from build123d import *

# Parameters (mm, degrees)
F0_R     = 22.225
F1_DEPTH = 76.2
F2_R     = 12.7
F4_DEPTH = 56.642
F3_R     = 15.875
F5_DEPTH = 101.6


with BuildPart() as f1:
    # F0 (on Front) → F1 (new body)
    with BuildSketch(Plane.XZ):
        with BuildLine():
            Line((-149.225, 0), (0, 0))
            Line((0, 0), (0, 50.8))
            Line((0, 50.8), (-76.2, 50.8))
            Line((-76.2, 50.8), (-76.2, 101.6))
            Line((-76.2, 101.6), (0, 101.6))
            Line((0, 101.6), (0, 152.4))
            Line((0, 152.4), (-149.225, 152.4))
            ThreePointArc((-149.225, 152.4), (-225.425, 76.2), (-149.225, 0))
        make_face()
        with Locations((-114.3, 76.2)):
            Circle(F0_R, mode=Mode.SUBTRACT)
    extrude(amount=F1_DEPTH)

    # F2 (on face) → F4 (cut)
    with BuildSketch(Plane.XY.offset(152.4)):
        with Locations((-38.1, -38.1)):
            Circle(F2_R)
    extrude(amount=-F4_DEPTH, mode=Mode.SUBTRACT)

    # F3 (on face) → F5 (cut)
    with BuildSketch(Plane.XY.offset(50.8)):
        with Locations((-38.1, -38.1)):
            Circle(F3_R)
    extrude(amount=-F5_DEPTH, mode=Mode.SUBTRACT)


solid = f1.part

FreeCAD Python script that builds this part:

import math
import FreeCAD as App
import Part
import Sketcher
Q = App.Units.Quantity

doc = App.newDocument("Part")
body = doc.addObject("PartDesign::Body", "Body")

# Sketch on XZ plane
sketch1 = body.newObject("Sketcher::SketchObject", "Sketch")
sketch1.AttachmentSupport = (doc.getObject("XZ_Plane"), [""])
sketch1.MapMode = "FlatFace"
sketch1.addGeometry([
    Part.LineSegment(App.Vector(-149.225, 0, 0), App.Vector(0, 0, 0)),  # 0
    Part.LineSegment(App.Vector(0, 0, 0), App.Vector(0, 50.8, 0)),  # 1
    Part.LineSegment(App.Vector(0, 50.8, 0), App.Vector(-76.2, 50.8, 0)),  # 2
    Part.LineSegment(App.Vector(-76.2, 50.8, 0), App.Vector(-76.2, 101.6, 0)),  # 3
    Part.LineSegment(App.Vector(-76.2, 101.6, 0), App.Vector(0, 101.6, 0)),  # 4
    Part.LineSegment(App.Vector(0, 101.6, 0), App.Vector(0, 152.4, 0)),  # 5
    Part.LineSegment(App.Vector(0, 152.4, 0), App.Vector(-149.225, 152.4, 0)),  # 6
    Part.ArcOfCircle(Part.Circle(App.Vector(-149.225, 76.2, 0), App.Vector(0, 0, 1), 76.2), math.radians(90), math.radians(270)),  # 7
    Part.Circle(App.Vector(-114.3, 76.2, 0), App.Vector(0, 0, 1), 22.225),  # 8
], False)
sketch1.addConstraint([
    Sketcher.Constraint("Coincident", 0, 2, 1, 1),
    Sketcher.Constraint("Coincident", 1, 2, 2, 1),
    Sketcher.Constraint("Coincident", 2, 2, 3, 1),
    Sketcher.Constraint("Coincident", 3, 2, 4, 1),
    Sketcher.Constraint("Coincident", 4, 2, 5, 1),
    Sketcher.Constraint("Coincident", 5, 2, 6, 1),
    Sketcher.Constraint("Tangent", 6, 2, 7, 1),
    Sketcher.Constraint("Tangent", 7, 2, 0, 1),
    Sketcher.Constraint("Horizontal", 0),
    Sketcher.Constraint("Vertical", 1),
    Sketcher.Constraint("Horizontal", 2),
    Sketcher.Constraint("Vertical", 3),
    Sketcher.Constraint("Horizontal", 4),
    Sketcher.Constraint("Vertical", 5),
    Sketcher.Constraint("Horizontal", 6),
    Sketcher.Constraint("Coincident", 0, 2, -1, 1),
    Sketcher.Constraint("PointOnObject", 4, 2, -2),
    Sketcher.Constraint("Horizontal", 7, 3, 8, 3),
    Sketcher.Constraint("Equal", 1, 3),
    Sketcher.Constraint("Equal", 3, 5),
    Sketcher.Constraint("Radius", 7, Q("3 in")),
    Sketcher.Constraint("Diameter", 8, Q("1.75 in")),
    Sketcher.Constraint("DistanceX", 2, 2, 2, 1, Q("3 in")),
    Sketcher.Constraint("DistanceX", 8, 3, -1, 1, Q("4.5 in")),
    Sketcher.Constraint("DistanceX", 0, 1, 0, 2, Q("5.875 in")),
])
pad1 = body.newObject("PartDesign::Pad", "Pad")
pad1.Profile = sketch1
pad1.Length = Q("3 in")

# Sketch on XY plane
sketch2 = body.newObject("Sketcher::SketchObject", "Sketch001")
sketch2.AttachmentSupport = (doc.getObject("XY_Plane"), [""])
sketch2.MapMode = "FlatFace"
sketch2.AttachmentOffset = App.Placement(App.Vector(0, 0, 6 * 25.4), App.Rotation())
sketch2.addGeometry(Part.Circle(App.Vector(-38.1, -38.1, 0), App.Vector(0, 0, 1), 12.7), False)
sketch2.addConstraint([
    Sketcher.Constraint("Diameter", 0, Q("1 in")),
    Sketcher.Constraint("DistanceX", 0, 3, -1, 1, Q("1.5 in")),
    Sketcher.Constraint("DistanceY", 0, 3, -1, 1, Q("1.5 in")),
])
pocket1 = body.newObject("PartDesign::Pocket", "Pocket")
pocket1.Profile = sketch2
pocket1.Length = Q("2.23 in")

# Sketch on XY plane
sketch3 = body.newObject("Sketcher::SketchObject", "Sketch002")
sketch3.AttachmentSupport = (doc.getObject("XY_Plane"), [""])
sketch3.MapMode = "FlatFace"
sketch3.AttachmentOffset = App.Placement(App.Vector(0, 0, 2 * 25.4), App.Rotation())
sketch3.addGeometry(Part.Circle(App.Vector(-38.1, -38.1, 0), App.Vector(0, 0, 1), 15.875), False)
sketch3.addConstraint([
    Sketcher.Constraint("Diameter", 0, Q("1.25 in")),
    Sketcher.Constraint("DistanceX", 0, 3, -1, 1, Q("1.5 in")),
    Sketcher.Constraint("DistanceY", 0, 3, -1, 1, Q("1.5 in")),
])
pocket2 = body.newObject("PartDesign::Pocket", "Pocket001")
pocket2.Profile = sketch3
pocket2.Length = Q("4 in")

doc.recompute()
